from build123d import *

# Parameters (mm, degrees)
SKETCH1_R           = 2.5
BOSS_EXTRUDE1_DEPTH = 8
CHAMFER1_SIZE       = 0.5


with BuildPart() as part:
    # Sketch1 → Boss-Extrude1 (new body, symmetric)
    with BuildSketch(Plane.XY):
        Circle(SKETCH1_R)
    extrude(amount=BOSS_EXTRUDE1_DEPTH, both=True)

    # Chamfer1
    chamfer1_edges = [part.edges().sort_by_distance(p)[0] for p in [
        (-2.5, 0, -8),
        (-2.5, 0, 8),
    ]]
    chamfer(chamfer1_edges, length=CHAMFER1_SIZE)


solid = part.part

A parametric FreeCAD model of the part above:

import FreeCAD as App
import Part
import Sketcher
from FreeCAD import Vector


def edges_at(feature, points):
    """Names of the edges that pass closest to the given points."""
    edges = feature.Shape.Edges
    near = lambda p: min(range(len(edges)), key=lambda i: edges[i].distToShape(Part.Vertex(*p))[0])
    return sorted({f"Edge{near(p) + 1}" for p in points})

doc = App.newDocument("Part")
params = doc.addObject("Spreadsheet::Sheet", "Params")
for row, (alias, value) in enumerate([
    ("sketch1_diameter", "5 mm"),
    ("pad1_length", "16 mm"),
    ("chamfer_size", "0.5 mm"),
], start=1):
    params.set(f"A{row}", alias)
    params.set(f"B{row}", "=" + value)
    params.setAlias(f"B{row}", alias)

body = doc.addObject("PartDesign::Body", "Body")

sketch1 = body.newObject("Sketcher::SketchObject", "Sketch")
sketch1.AttachmentSupport = (doc.getObject("XY_Plane"), [""])
sketch1.MapMode = "FlatFace"
sketch1.addGeometry(Part.Circle(Vector(0, 0, 0), Vector(0, 0, 1), 2.5), False)
sketch1.addConstraint([
    Sketcher.Constraint("Coincident", 0, 3, -1, 1),
    Sketcher.Constraint("Diameter", 0, 5.0),
])
sketch1.setExpression("Constraints[1]", "Params.sketch1_diameter")
pad1 = body.newObject("PartDesign::Pad", "Pad")
pad1.Profile = sketch1
pad1.setExpression("Length", "Params.pad1_length")
pad1.Midplane = True
doc.recompute()

chamfer = body.newObject("PartDesign::Chamfer", "Chamfer")
chamfer.Base = (pad1, edges_at(pad1, [(-2.5, 0, -8), (-2.5, 0, 8)]))
chamfer.setExpression("Size", "Params.chamfer_size")

doc.recompute()
